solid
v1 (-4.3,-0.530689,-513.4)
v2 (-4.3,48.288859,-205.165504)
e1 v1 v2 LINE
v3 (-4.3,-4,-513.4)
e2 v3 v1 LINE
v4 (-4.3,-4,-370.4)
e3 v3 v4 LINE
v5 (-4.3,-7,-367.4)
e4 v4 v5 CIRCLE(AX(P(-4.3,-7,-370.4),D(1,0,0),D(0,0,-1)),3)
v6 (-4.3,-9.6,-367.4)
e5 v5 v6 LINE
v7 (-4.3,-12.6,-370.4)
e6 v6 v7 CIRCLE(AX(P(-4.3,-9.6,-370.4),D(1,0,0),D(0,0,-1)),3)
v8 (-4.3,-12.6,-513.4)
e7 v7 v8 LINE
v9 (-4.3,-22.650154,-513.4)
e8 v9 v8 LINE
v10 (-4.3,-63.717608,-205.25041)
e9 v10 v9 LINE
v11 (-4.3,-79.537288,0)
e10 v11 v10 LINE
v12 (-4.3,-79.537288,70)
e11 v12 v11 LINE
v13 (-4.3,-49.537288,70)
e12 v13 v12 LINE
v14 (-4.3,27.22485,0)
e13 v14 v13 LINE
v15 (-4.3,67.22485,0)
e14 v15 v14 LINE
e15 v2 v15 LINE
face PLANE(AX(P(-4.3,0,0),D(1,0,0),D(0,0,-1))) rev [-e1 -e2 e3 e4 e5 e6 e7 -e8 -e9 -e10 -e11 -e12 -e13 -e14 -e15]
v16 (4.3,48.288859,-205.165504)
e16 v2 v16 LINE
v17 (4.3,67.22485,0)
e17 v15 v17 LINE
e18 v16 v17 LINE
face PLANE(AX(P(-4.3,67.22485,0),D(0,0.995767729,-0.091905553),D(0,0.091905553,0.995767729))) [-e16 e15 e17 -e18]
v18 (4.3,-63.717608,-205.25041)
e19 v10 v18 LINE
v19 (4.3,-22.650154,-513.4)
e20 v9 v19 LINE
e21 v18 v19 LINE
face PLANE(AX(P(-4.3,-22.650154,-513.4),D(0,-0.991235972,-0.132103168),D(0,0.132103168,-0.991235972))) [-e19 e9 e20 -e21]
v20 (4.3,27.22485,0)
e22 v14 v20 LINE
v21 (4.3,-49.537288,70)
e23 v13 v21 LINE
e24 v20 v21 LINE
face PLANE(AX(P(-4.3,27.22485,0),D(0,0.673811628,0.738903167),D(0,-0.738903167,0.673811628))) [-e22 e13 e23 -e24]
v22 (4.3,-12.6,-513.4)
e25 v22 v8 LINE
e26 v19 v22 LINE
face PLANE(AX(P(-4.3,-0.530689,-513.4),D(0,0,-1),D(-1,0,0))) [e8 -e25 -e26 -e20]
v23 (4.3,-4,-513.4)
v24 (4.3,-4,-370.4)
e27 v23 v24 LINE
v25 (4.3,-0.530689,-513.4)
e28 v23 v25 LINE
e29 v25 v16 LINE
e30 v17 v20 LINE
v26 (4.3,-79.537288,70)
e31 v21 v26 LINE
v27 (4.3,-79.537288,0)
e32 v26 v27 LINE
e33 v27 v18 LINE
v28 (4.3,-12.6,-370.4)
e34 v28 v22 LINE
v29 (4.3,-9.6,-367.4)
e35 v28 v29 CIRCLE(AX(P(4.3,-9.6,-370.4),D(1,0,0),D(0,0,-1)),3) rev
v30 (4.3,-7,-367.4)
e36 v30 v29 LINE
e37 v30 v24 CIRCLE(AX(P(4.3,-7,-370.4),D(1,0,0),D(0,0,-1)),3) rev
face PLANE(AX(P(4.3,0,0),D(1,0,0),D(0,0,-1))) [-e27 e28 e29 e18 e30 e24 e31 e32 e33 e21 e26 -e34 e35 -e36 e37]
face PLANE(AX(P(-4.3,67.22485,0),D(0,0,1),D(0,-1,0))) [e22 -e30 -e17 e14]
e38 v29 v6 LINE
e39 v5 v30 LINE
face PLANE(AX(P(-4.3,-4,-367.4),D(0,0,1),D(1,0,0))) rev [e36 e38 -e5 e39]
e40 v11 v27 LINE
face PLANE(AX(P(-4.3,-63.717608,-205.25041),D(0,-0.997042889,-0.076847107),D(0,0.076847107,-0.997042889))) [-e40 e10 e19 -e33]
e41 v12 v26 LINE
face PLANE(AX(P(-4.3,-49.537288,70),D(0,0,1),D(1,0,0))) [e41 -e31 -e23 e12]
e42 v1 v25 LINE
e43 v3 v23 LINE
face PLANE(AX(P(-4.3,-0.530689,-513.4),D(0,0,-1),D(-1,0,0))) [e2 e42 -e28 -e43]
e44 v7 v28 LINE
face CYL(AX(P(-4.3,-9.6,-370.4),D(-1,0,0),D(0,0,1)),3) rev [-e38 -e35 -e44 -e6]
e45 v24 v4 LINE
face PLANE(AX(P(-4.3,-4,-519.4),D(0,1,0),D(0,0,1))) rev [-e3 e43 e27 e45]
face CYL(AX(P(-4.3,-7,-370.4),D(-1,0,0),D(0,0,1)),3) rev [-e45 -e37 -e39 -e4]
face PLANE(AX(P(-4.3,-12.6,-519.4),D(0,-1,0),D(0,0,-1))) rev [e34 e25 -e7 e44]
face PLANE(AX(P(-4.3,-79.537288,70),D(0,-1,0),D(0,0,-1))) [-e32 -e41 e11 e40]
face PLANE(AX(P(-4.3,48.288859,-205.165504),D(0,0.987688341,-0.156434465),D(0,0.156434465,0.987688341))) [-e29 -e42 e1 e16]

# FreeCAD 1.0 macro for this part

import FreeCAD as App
import Part
import Sketcher
Q = App.Units.Quantity


def edges_at(feature, points):
    """Names of the edges that pass closest to the given points."""
    edges = feature.Shape.Edges
    near = lambda p: min(range(len(edges)), key=lambda i: edges[i].distToShape(Part.Vertex(*p))[0])
    return sorted({f"Edge{near(p) + 1}" for p in points})


def add_polygon(sketch, points):
    """Adds a closed chain of lines whose ends are joined by coincident constraints."""
    first, n = sketch.GeometryCount, len(points)
    for a, b in zip(points, points[1:] + points[:1]):
        sketch.addGeometry(Part.LineSegment(App.Vector(*a, 0), App.Vector(*b, 0)), False)
    for i in range(n):
        sketch.addConstraint(Sketcher.Constraint("Coincident", first + i, 2, first + (i + 1) % n, 1))

doc = App.newDocument("Part")
params = doc.addObject("Spreadsheet::Sheet", "Params")
for row, (alias, value) in enumerate([
    ("sketch1_width", "40 mm"),
    ("sketch1_width2", "30 mm"),
    ("sketch1_height", "70 mm"),
    ("pad1_length", "4.3 mm"),
    ("pad1_length2", "4.3 mm"),
    ("sketch2_height", "152 mm"),
    ("sketch2_width", "8.6 mm"),
    ("fillet_radius", "3 mm"),
], start=1):
    params.set(f"A{row}", alias)
    params.set(f"B{row}", "=" + value)
    params.setAlias(f"B{row}", alias)

body = doc.addObject("PartDesign::Body", "Body")

sketch1 = body.newObject("Sketcher::SketchObject", "Sketch")
sketch1.AttachmentSupport = (doc.getObject("YZ_Plane"), [""])
sketch1.MapMode = "FlatFace"
add_polygon(sketch1, [(48, -205), (67, 0), (27, 0), (-50, 70), (-80, 70), (-80, 0), (-64, -205), (-23, -513), (-1, -513)])
sketch1.addConstraint([
    Sketcher.Constraint("Horizontal", 1),
    Sketcher.Constraint("Horizontal", 3),
    Sketcher.Constraint("Vertical", 4),
    Sketcher.Constraint("Horizontal", 7),
    Sketcher.Constraint("PointOnObject", 0, 2, -1),
    Sketcher.Constraint("PointOnObject", 4, 2, -1),
    Sketcher.Constraint("DistanceX", 1, 2, 1, 1, 40.0),
    Sketcher.Constraint("DistanceX", 3, 2, 3, 1, 30.0),
    Sketcher.Constraint("DistanceY", 4, 2, 4, 1, 70.0),
    Sketcher.Constraint("Angle", 8, Q("81 deg")),
    Sketcher.Constraint("DistanceY", 6, 2, -1, 1, 513.4),
    Sketcher.Constraint("Distance", 2, 103.886601),
    Sketcher.Constraint("Distance", 6, 310.874099),
    Sketcher.Constraint("DistanceX", 4, 2, 7, 2, 79.006599),
    Sketcher.Constraint("Distance", 0, 206.03751),
    Sketcher.Constraint("Distance", 5, 205.859158),
    Sketcher.Constraint("DistanceX", 7, 1, 7, 2, 22.119465),
    Sketcher.Constraint("DistanceX", -1, 1, 0, 2, 67.22485),
])
sketch1.setExpression("Constraints[15]", "Params.sketch1_width")
sketch1.setExpression("Constraints[16]", "Params.sketch1_width2")
sketch1.setExpression("Constraints[17]", "Params.sketch1_height")
pad1 = body.newObject("PartDesign::Pad", "Pad")
pad1.Profile = sketch1
pad1.Type = "TwoLengths"
pad1.setExpression("Length", "Params.pad1_length")
pad1.setExpression("Length2", "Params.pad1_length2")

sketch2 = body.newObject("Sketcher::SketchObject", "Sketch001")
sketch2.AttachmentSupport = (doc.getObject("YZ_Plane"), [""])
sketch2.MapMode = "FlatFace"
sketch2.AttachmentOffset = App.Placement(App.Vector(0, 0, 4.3), App.Rotation())
add_polygon(sketch2, [(-4, -367), (-13, -367), (-13, -519), (-4, -519)])
sketch2.addConstraint([
    Sketcher.Constraint("Horizontal", 0),
    Sketcher.Constraint("Vertical", 1),
    Sketcher.Constraint("Horizontal", 2),
    Sketcher.Constraint("Vertical", 3),
    Sketcher.Constraint("DistanceY", 1, 2, 1, 1, 152.0),
    Sketcher.Constraint("DistanceX", 0, 2, 0, 1, 8.6),
    Sketcher.Constraint("DistanceX", 2, 2, -1, 1, 4.0),
    Sketcher.Constraint("DistanceY", 0, 2, -1, 1, 367.4),
])
sketch2.setExpression("Constraints[8]", "Params.sketch2_height")
sketch2.setExpression("Constraints[9]", "Params.sketch2_width")
pocket1 = body.newObject("PartDesign::Pocket", "Pocket")
pocket1.Profile = sketch2
pocket1.Type = "ThroughAll"
doc.recompute()

fillet = body.newObject("PartDesign::Fillet", "Fillet")
fillet.Base = (pocket1, edges_at(pocket1, [(0, -12.6, -367.4), (0, -4, -367.4)]))
fillet.setExpression("Radius", "Params.fillet_radius")

doc.recompute()
